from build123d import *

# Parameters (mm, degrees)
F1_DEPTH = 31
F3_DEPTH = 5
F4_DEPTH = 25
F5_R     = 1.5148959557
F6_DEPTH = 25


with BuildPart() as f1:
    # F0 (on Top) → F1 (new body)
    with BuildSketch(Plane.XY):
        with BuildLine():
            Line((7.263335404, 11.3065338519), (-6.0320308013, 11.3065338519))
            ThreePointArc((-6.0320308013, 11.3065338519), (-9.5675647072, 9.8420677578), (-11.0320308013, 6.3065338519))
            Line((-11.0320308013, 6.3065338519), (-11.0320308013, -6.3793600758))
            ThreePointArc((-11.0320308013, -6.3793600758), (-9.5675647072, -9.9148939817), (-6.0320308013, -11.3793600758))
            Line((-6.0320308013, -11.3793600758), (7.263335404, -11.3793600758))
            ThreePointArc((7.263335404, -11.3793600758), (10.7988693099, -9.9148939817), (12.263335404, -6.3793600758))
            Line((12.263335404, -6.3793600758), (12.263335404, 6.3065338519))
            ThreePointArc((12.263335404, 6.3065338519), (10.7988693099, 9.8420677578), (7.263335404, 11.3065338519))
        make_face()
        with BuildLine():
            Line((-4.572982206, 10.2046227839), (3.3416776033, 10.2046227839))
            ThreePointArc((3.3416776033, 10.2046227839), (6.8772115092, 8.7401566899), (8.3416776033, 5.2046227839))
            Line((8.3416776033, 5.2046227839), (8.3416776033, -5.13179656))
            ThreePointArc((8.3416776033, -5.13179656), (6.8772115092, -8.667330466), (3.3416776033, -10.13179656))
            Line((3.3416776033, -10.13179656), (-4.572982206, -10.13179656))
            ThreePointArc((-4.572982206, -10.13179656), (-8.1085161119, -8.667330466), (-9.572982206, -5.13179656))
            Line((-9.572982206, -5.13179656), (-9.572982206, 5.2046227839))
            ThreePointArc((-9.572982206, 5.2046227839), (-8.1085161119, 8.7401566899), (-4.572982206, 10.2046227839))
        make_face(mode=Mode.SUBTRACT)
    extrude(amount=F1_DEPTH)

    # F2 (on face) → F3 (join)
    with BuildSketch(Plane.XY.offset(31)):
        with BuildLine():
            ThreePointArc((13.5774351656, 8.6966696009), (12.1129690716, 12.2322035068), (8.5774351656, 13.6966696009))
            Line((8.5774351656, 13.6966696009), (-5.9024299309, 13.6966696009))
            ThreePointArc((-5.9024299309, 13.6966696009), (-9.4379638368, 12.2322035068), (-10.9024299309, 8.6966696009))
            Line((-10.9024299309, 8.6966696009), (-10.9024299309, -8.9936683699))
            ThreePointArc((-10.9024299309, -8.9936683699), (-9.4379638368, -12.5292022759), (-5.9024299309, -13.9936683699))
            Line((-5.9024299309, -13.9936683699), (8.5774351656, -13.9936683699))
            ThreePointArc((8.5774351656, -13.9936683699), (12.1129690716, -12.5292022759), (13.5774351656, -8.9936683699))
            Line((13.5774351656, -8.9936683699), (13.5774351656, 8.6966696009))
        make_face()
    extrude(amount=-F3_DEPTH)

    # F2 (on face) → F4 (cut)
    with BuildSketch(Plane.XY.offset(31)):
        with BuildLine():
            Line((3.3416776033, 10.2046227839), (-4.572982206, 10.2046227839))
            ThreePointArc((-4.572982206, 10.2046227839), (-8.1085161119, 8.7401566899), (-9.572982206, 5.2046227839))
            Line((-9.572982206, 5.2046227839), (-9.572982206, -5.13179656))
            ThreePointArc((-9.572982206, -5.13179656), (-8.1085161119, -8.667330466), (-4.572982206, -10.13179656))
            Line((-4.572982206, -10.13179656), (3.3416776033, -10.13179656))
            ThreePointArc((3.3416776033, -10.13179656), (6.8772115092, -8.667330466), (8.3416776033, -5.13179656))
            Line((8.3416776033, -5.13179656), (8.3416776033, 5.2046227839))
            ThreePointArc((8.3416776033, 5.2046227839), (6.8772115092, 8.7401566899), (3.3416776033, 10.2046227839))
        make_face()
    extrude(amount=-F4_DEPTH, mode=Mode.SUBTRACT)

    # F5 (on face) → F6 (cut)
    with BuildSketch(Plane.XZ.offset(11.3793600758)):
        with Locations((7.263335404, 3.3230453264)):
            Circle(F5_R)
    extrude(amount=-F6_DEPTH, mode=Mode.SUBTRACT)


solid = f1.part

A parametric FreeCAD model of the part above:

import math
import FreeCAD as App
import Part
import Sketcher

V = App.Vector

doc = App.newDocument("Part")
body = doc.addObject("PartDesign::Body", "Body")

sketch1 = body.newObject("Sketcher::SketchObject", "Sketch")
sketch1.AttachmentSupport = (doc.getObject("XY_Plane"), [""])
sketch1.MapMode = "FlatFace"
sketch1.addGeometry(Part.LineSegment(V(7, 11, 0), V(-6, 11, 0)), False)
sketch1.addGeometry(Part.ArcOfCircle(Part.Circle(V(-6, 6, 0), V(0, 0, 1), 5), math.radians(90), math.radians(180)), False)
sketch1.addGeometry(Part.LineSegment(V(-11, 6, 0), V(-11, -6, 0)), False)
sketch1.addGeometry(Part.ArcOfCircle(Part.Circle(V(-6, -6, 0), V(0, 0, 1), 5), math.radians(180), math.radians(270)), False)
sketch1.addGeometry(Part.LineSegment(V(-6, -11, 0), V(7, -11, 0)), False)
sketch1.addGeometry(Part.ArcOfCircle(Part.Circle(V(7, -6, 0), V(0, 0, 1), 5), math.radians(-90), math.radians(0)), False)
sketch1.addGeometry(Part.LineSegment(V(12, -6, 0), V(12, 6, 0)), False)
sketch1.addGeometry(Part.ArcOfCircle(Part.Circle(V(7, 6, 0), V(0, 0, 1), 5), math.radians(0), math.radians(90)), False)
sketch1.addGeometry(Part.ArcOfCircle(Part.Circle(V(-5, 5, 0), V(0, 0, 1), 5), math.radians(90), math.radians(180)), False)
sketch1.addGeometry(Part.LineSegment(V(-5, 10, 0), V(3, 10, 0)), False)
sketch1.addGeometry(Part.ArcOfCircle(Part.Circle(V(3, 5, 0), V(0, 0, 1), 5), math.radians(0), math.radians(90)), False)
sketch1.addGeometry(Part.LineSegment(V(8, 5, 0), V(8, -5, 0)), False)
sketch1.addGeometry(Part.ArcOfCircle(Part.Circle(V(3, -5, 0), V(0, 0, 1), 5), math.radians(-90), math.radians(0)), False)
sketch1.addGeometry(Part.LineSegment(V(3, -10, 0), V(-5, -10, 0)), False)
sketch1.addGeometry(Part.ArcOfCircle(Part.Circle(V(-5, -5, 0), V(0, 0, 1), 5), math.radians(180), math.radians(270)), False)
sketch1.addGeometry(Part.LineSegment(V(-10, -5, 0), V(-10, 5, 0)), False)
sketch1.addConstraint(Sketcher.Constraint("Tangent", 0, 2, 1, 1))
sketch1.addConstraint(Sketcher.Constraint("Tangent", 1, 2, 2, 1))
sketch1.addConstraint(Sketcher.Constraint("Tangent", 2, 2, 3, 1))
sketch1.addConstraint(Sketcher.Constraint("Tangent", 3, 2, 4, 1))
sketch1.addConstraint(Sketcher.Constraint("Tangent", 4, 2, 5, 1))
sketch1.addConstraint(Sketcher.Constraint("Tangent", 5, 2, 6, 1))
sketch1.addConstraint(Sketcher.Constraint("Tangent", 6, 2, 7, 1))
sketch1.addConstraint(Sketcher.Constraint("Tangent", 7, 2, 0, 1))
sketch1.addConstraint(Sketcher.Constraint("Tangent", 8, 1, 9, 1))
sketch1.addConstraint(Sketcher.Constraint("Tangent", 9, 2, 10, 2))
sketch1.addConstraint(Sketcher.Constraint("Tangent", 10, 1, 11, 1))
sketch1.addConstraint(Sketcher.Constraint("Tangent", 11, 2, 12, 2))
sketch1.addConstraint(Sketcher.Constraint("Tangent", 12, 1, 13, 1))
sketch1.addConstraint(Sketcher.Constraint("Tangent", 13, 2, 14, 2))
sketch1.addConstraint(Sketcher.Constraint("Tangent", 14, 1, 15, 1))
sketch1.addConstraint(Sketcher.Constraint("Tangent", 15, 2, 8, 2))
sketch1.addConstraint(Sketcher.Constraint("Horizontal", 0))
sketch1.addConstraint(Sketcher.Constraint("Vertical", 2))
sketch1.addConstraint(Sketcher.Constraint("Horizontal", 4))
sketch1.addConstraint(Sketcher.Constraint("Vertical", 6))
sketch1.addConstraint(Sketcher.Constraint("Horizontal", 9))
sketch1.addConstraint(Sketcher.Constraint("Vertical", 11))
sketch1.addConstraint(Sketcher.Constraint("Horizontal", 13))
sketch1.addConstraint(Sketcher.Constraint("Vertical", 15))
sketch1.addConstraint(Sketcher.Constraint("Equal", 1, 3))
sketch1.addConstraint(Sketcher.Constraint("Equal", 3, 5))
sketch1.addConstraint(Sketcher.Constraint("Equal", 5, 7))
sketch1.addConstraint(Sketcher.Constraint("Equal", 7, 8))
sketch1.addConstraint(Sketcher.Constraint("Equal", 8, 10))
sketch1.addConstraint(Sketcher.Constraint("Equal", 10, 12))
sketch1.addConstraint(Sketcher.Constraint("Equal", 12, 14))
sketch1.addConstraint(Sketcher.Constraint("Radius", 1, 5.0))
sketch1.addConstraint(Sketcher.Constraint("DistanceX", 9, 1, 9, 2, 7.91466))
sketch1.addConstraint(Sketcher.Constraint("DistanceY", 11, 2, 11, 1, 10.336419))
sketch1.addConstraint(Sketcher.Constraint("DistanceX", 0, 2, 0, 1, 13.295366))
sketch1.addConstraint(Sketcher.Constraint("DistanceY", 2, 2, 2, 1, 12.685894))
sketch1.addConstraint(Sketcher.Constraint("DistanceX", 1, 3, -1, 1, 6.032031))
sketch1.addConstraint(Sketcher.Constraint("DistanceY", 3, 3, -1, 1, 6.37936))
sketch1.addConstraint(Sketcher.Constraint("DistanceX", 1, 3, 8, 3, 1.459049))
sketch1.addConstraint(Sketcher.Constraint("DistanceY", 8, 3, 1, 3, 1.101911))
pad1 = body.newObject("PartDesign::Pad", "Pad")
pad1.Profile = sketch1
pad1.Length = 31

sketch2 = body.newObject("Sketcher::SketchObject", "Sketch001")
sketch2.AttachmentSupport = (doc.getObject("XY_Plane"), [""])
sketch2.MapMode = "FlatFace"
sketch2.AttachmentOffset = App.Placement(V(0, 0, 31), App.Rotation())
sketch2.addGeometry(Part.ArcOfCircle(Part.Circle(V(9, 9, 0), V(0, 0, 1), 5), math.radians(0), math.radians(90)), False)
sketch2.addGeometry(Part.LineSegment(V(9, 14, 0), V(-6, 14, 0)), False)
sketch2.addGeometry(Part.ArcOfCircle(Part.Circle(V(-6, 9, 0), V(0, 0, 1), 5), math.radians(90), math.radians(180)), False)
sketch2.addGeometry(Part.LineSegment(V(-11, 9, 0), V(-11, -9, 0)), False)
sketch2.addGeometry(Part.ArcOfCircle(Part.Circle(V(-6, -9, 0), V(0, 0, 1), 5), math.radians(180), math.radians(270)), False)
sketch2.addGeometry(Part.LineSegment(V(-6, -14, 0), V(9, -14, 0)), False)
sketch2.addGeometry(Part.ArcOfCircle(Part.Circle(V(9, -9, 0), V(0, 0, 1), 5), math.radians(-90), math.radians(0)), False)
sketch2.addGeometry(Part.LineSegment(V(14, -9, 0), V(14, 9, 0)), False)
sketch2.addConstraint(Sketcher.Constraint("Tangent", 0, 2, 1, 1))
sketch2.addConstraint(Sketcher.Constraint("Tangent", 1, 2, 2, 1))
sketch2.addConstraint(Sketcher.Constraint("Tangent", 2, 2, 3, 1))
sketch2.addConstraint(Sketcher.Constraint("Tangent", 3, 2, 4, 1))
sketch2.addConstraint(Sketcher.Constraint("Tangent", 4, 2, 5, 1))
sketch2.addConstraint(Sketcher.Constraint("Tangent", 5, 2, 6, 1))
sketch2.addConstraint(Sketcher.Constraint("Tangent", 6, 2, 7, 1))
sketch2.addConstraint(Sketcher.Constraint("Tangent", 7, 2, 0, 1))
sketch2.addConstraint(Sketcher.Constraint("Horizontal", 1))
sketch2.addConstraint(Sketcher.Constraint("Vertical", 3))
sketch2.addConstraint(Sketcher.Constraint("Horizontal", 5))
sketch2.addConstraint(Sketcher.Constraint("Vertical", 7))
sketch2.addConstraint(Sketcher.Constraint("Equal", 0, 2))
sketch2.addConstraint(Sketcher.Constraint("Equal", 2, 4))
sketch2.addConstraint(Sketcher.Constraint("Equal", 4, 6))
sketch2.addConstraint(Sketcher.Constraint("Radius", 0, 5.0))
sketch2.addConstraint(Sketcher.Constraint("DistanceX", 1, 2, 1, 1, 14.479865))
sketch2.addConstraint(Sketcher.Constraint("DistanceY", 3, 2, 3, 1, 17.690338))
sketch2.addConstraint(Sketcher.Constraint("DistanceY", -1, 1, 0, 3, 8.69667))
sketch2.addConstraint(Sketcher.Constraint("DistanceX", 2, 3, -1, 1, 5.90243))
pad2 = body.newObject("PartDesign::Pad", "Pad001")
pad2.Profile = sketch2
pad2.Length = 5
pad2.Reversed = True

sketch3 = body.newObject("Sketcher::SketchObject", "Sketch002")
sketch3.AttachmentSupport = (doc.getObject("XY_Plane"), [""])
sketch3.MapMode = "FlatFace"
sketch3.AttachmentOffset = App.Placement(V(0, 0, 31), App.Rotation())
sketch3.addGeometry(Part.LineSegment(V(3, 10, 0), V(-5, 10, 0)), False)
sketch3.addGeometry(Part.ArcOfCircle(Part.Circle(V(-5, 5, 0), V(0, 0, 1), 5), math.radians(90), math.radians(180)), False)
sketch3.addGeometry(Part.LineSegment(V(-10, 5, 0), V(-10, -5, 0)), False)
sketch3.addGeometry(Part.ArcOfCircle(Part.Circle(V(-5, -5, 0), V(0, 0, 1), 5), math.radians(180), math.radians(270)), False)
sketch3.addGeometry(Part.LineSegment(V(-5, -10, 0), V(3, -10, 0)), False)
sketch3.addGeometry(Part.ArcOfCircle(Part.Circle(V(3, -5, 0), V(0, 0, 1), 5), math.radians(-90), math.radians(0)), False)
sketch3.addGeometry(Part.LineSegment(V(8, -5, 0), V(8, 5, 0)), False)
sketch3.addGeometry(Part.ArcOfCircle(Part.Circle(V(3, 5, 0), V(0, 0, 1), 5), math.radians(0), math.radians(90)), False)
sketch3.addConstraint(Sketcher.Constraint("Tangent", 0, 2, 1, 1))
sketch3.addConstraint(Sketcher.Constraint("Tangent", 1, 2, 2, 1))
sketch3.addConstraint(Sketcher.Constraint("Tangent", 2, 2, 3, 1))
sketch3.addConstraint(Sketcher.Constraint("Tangent", 3, 2, 4, 1))
sketch3.addConstraint(Sketcher.Constraint("Tangent", 4, 2, 5, 1))
sketch3.addConstraint(Sketcher.Constraint("Tangent", 5, 2, 6, 1))
sketch3.addConstraint(Sketcher.Constraint("Tangent", 6, 2, 7, 1))
sketch3.addConstraint(Sketcher.Constraint("Tangent", 7, 2, 0, 1))
sketch3.addConstraint(Sketcher.Constraint("Horizontal", 0))
sketch3.addConstraint(Sketcher.Constraint("Vertical", 2))
sketch3.addConstraint(Sketcher.Constraint("Horizontal", 4))
sketch3.addConstraint(Sketcher.Constraint("Vertical", 6))
sketch3.addConstraint(Sketcher.Constraint("Equal", 1, 3))
sketch3.addConstraint(Sketcher.Constraint("Equal", 3, 5))
sketch3.addConstraint(Sketcher.Constraint("Equal", 5, 7))
sketch3.addConstraint(Sketcher.Constraint("Radius", 1, 5.0))
sketch3.addConstraint(Sketcher.Constraint("DistanceX", 0, 2, 0, 1, 7.91466))
sketch3.addConstraint(Sketcher.Constraint("DistanceY", 2, 2, 2, 1, 10.336419))
sketch3.addConstraint(Sketcher.Constraint("DistanceX", 1, 3, -1, 1, 4.572982))
sketch3.addConstraint(Sketcher.Constraint("DistanceY", -1, 1, 1, 3, 5.204623))
pocket1 = body.newObject("PartDesign::Pocket", "Pocket")
pocket1.Profile = sketch3
pocket1.Length = 25

sketch4 = body.newObject("Sketcher::SketchObject", "Sketch003")
sketch4.AttachmentSupport = (doc.getObject("XZ_Plane"), [""])
sketch4.MapMode = "FlatFace"
sketch4.AttachmentOffset = App.Placement(V(0, 0, 11.37936), App.Rotation())
sketch4.addGeometry(Part.Circle(V(7.3, 3.3, 0), V(0, 0, 1), 1.5), False)
sketch4.addConstraint(Sketcher.Constraint("Diameter", 0, 3.029792))
sketch4.addConstraint(Sketcher.Constraint("DistanceX", -1, 1, 0, 3, 7.263335))
sketch4.addConstraint(Sketcher.Constraint("DistanceY", -1, 1, 0, 3, 3.323045))
pocket2 = body.newObject("PartDesign::Pocket", "Pocket001")
pocket2.Profile = sketch4
pocket2.Length = 25

doc.recompute()
